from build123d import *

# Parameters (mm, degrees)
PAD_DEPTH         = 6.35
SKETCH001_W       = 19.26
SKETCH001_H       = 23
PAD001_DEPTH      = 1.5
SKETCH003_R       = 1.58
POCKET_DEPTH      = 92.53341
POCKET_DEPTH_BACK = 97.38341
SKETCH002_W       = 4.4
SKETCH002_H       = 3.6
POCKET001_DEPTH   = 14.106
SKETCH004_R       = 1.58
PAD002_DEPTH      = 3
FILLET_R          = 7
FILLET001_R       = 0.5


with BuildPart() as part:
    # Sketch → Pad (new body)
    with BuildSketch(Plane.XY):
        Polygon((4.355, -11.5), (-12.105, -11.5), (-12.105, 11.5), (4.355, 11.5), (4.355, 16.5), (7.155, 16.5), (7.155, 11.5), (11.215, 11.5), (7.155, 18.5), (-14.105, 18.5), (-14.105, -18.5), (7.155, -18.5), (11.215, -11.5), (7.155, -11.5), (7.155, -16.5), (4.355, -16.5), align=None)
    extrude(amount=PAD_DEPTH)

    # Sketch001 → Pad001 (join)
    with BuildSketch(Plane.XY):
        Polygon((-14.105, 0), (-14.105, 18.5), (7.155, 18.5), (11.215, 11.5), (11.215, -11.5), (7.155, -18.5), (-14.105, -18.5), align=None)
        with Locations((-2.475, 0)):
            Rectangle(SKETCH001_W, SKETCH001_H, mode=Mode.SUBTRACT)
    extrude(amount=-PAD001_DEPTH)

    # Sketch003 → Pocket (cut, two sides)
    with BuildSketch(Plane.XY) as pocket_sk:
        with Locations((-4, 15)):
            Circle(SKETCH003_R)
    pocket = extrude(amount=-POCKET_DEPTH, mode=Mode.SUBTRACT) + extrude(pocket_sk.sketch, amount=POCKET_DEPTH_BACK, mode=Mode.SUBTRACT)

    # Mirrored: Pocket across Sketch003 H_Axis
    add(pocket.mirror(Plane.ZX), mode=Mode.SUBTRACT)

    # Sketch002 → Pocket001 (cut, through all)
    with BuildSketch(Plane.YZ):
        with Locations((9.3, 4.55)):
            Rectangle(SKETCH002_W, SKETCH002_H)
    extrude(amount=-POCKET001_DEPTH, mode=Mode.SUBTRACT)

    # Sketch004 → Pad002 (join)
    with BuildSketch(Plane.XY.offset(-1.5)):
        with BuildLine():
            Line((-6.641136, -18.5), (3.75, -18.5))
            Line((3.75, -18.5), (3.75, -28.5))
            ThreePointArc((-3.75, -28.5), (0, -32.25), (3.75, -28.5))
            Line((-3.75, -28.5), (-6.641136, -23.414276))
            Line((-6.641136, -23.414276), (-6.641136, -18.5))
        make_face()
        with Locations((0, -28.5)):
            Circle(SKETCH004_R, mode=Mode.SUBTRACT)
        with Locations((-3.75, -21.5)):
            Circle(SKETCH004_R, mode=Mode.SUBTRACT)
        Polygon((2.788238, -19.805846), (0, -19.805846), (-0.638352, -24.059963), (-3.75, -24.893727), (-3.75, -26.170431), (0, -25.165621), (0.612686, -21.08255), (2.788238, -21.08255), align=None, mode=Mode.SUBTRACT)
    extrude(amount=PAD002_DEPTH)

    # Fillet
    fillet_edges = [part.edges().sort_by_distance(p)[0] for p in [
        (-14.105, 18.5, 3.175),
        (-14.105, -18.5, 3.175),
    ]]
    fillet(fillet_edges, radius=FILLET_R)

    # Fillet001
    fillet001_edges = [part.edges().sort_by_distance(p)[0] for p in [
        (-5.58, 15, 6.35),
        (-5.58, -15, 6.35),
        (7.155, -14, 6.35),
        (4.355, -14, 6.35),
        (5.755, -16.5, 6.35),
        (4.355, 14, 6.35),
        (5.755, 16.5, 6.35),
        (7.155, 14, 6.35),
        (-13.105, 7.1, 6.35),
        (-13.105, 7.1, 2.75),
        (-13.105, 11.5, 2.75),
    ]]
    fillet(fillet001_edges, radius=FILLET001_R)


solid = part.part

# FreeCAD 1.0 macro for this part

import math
import FreeCAD as App
import Part
import Sketcher

V = App.Vector
Q = App.Units.Quantity


def edges_at(feature, points):
    """Names of the edges that pass closest to the given points."""
    edges = feature.Shape.Edges
    near = lambda p: min(range(len(edges)), key=lambda i: edges[i].distToShape(Part.Vertex(*p))[0])
    return sorted({f"Edge{near(p) + 1}" for p in points})


def add_polygon(sketch, points):
    """Adds a closed chain of lines whose ends are joined by coincident constraints."""
    first, n = sketch.GeometryCount, len(points)
    for a, b in zip(points, points[1:] + points[:1]):
        sketch.addGeometry(Part.LineSegment(App.Vector(*a, 0), App.Vector(*b, 0)), False)
    for i in range(n):
        sketch.addConstraint(Sketcher.Constraint("Coincident", first + i, 2, first + (i + 1) % n, 1))

doc = App.newDocument("Part")
body = doc.addObject("PartDesign::Body", "Body")

# Sketch on XY plane
sketch1 = body.newObject("Sketcher::SketchObject", "Sketch")
sketch1.AttachmentSupport = (doc.getObject("XY_Plane"), [""])
sketch1.MapMode = "FlatFace"
add_polygon(sketch1, [(4.4, -11.5), (-12.1, -11.5), (-12.1, 11.5), (4.4, 11.5), (4.4, 16.5), (7.2, 16.5), (7.2, 11.5), (11.2, 11.5), (7.2, 18.5), (-14.1, 18.5), (-14.1, -18.5), (7.2, -18.5), (11.2, -11.5), (7.2, -11.5), (7.2, -16.5), (4.4, -16.5)])  # lines 0-15
sketch1.addConstraint(Sketcher.Constraint("Horizontal", 0))
sketch1.addConstraint(Sketcher.Constraint("Vertical", 1))
sketch1.addConstraint(Sketcher.Constraint("Horizontal", 2))
sketch1.addConstraint(Sketcher.Constraint("Vertical", 3))
sketch1.addConstraint(Sketcher.Constraint("Horizontal", 4))
sketch1.addConstraint(Sketcher.Constraint("Vertical", 5))
sketch1.addConstraint(Sketcher.Constraint("Horizontal", 6))
sketch1.addConstraint(Sketcher.Constraint("Horizontal", 8))
sketch1.addConstraint(Sketcher.Constraint("Vertical", 9))
sketch1.addConstraint(Sketcher.Constraint("Horizontal", 10))
sketch1.addConstraint(Sketcher.Constraint("Horizontal", 12))
sketch1.addConstraint(Sketcher.Constraint("Vertical", 13))
sketch1.addConstraint(Sketcher.Constraint("Horizontal", 14))
sketch1.addConstraint(Sketcher.Constraint("Vertical", 15))
sketch1.addConstraint(Sketcher.Constraint("Symmetric", 7, 2, 10, 2, -1))
sketch1.addConstraint(Sketcher.Constraint("Symmetric", 6, 2, 11, 2, -1))
sketch1.addConstraint(Sketcher.Constraint("Symmetric", 4, 2, 13, 2, -1))
sketch1.addConstraint(Sketcher.Constraint("Symmetric", 2, 2, 15, 2, -1))
sketch1.addConstraint(Sketcher.Constraint("Horizontal", 2, 2, 5, 2))
sketch1.addConstraint(Sketcher.Constraint("Vertical", 5, 2, 7, 2))
sketch1.addConstraint(Sketcher.Constraint("DistanceY", 1, 1, 1, 2, 23.0))
sketch1.addConstraint(Sketcher.Constraint("DistanceY", 3, 1, 3, 2, 5.0))
sketch1.addConstraint(Sketcher.Constraint("DistanceY", 9, 2, 9, 1, 37.0))
sketch1.addConstraint(Sketcher.Constraint("DistanceX", 4, 1, 4, 2, 2.8))
sketch1.addConstraint(Sketcher.Constraint("DistanceX", 8, 2, 1, 2, 2.0))
sketch1.addConstraint(Sketcher.Constraint("DistanceX", 0, 2, 0, 1, 16.46))
sketch1.addConstraint(Sketcher.Constraint("DistanceX", 6, 1, 6, 2, 4.06))
sketch1.addConstraint(Sketcher.Constraint("DistanceX", 0, 2, -1, 1, 12.105))
pad1 = body.newObject("PartDesign::Pad", "Pad")
pad1.Profile = sketch1
pad1.Length = 6.35

# Sketch on XY plane
sketch2 = body.newObject("Sketcher::SketchObject", "Sketch001")
sketch2.AttachmentSupport = (doc.getObject("XY_Plane"), [""])
sketch2.MapMode = "FlatFace"
add_polygon(sketch2, [(-14, 18), (-14, -18), (7, -18), (11, -12), (11, 12), (7, 18)])  # lines 0-5
add_polygon(sketch2, [(-12, -12), (-12, 12), (7, 12), (7, -12)])  # lines 6-9
sketch2.addConstraint(Sketcher.Constraint("Vertical", 0))
sketch2.addConstraint(Sketcher.Constraint("Horizontal", 1))
sketch2.addConstraint(Sketcher.Constraint("Vertical", 3))
sketch2.addConstraint(Sketcher.Constraint("Horizontal", 5))
sketch2.addConstraint(Sketcher.Constraint("Vertical", 6))
sketch2.addConstraint(Sketcher.Constraint("Horizontal", 7))
sketch2.addConstraint(Sketcher.Constraint("Vertical", 8))
sketch2.addConstraint(Sketcher.Constraint("Horizontal", 9))
sketch2.addConstraint(Sketcher.Constraint("Symmetric", 1, 2, 4, 2, -1))
sketch2.addConstraint(Sketcher.Constraint("Horizontal", 3, 2, 6, 2))
sketch2.addConstraint(Sketcher.Constraint("Horizontal", 2, 2, 8, 2))
sketch2.addConstraint(Sketcher.Constraint("Vertical", 4, 2, 7, 2))
sketch2.addConstraint(Sketcher.Constraint("Equal", 2, 4))
sketch2.addConstraint(Sketcher.Constraint("DistanceY", 0, 2, 0, 1, 37.0))
sketch2.addConstraint(Sketcher.Constraint("DistanceY", 3, 1, 3, 2, 23.0))
sketch2.addConstraint(Sketcher.Constraint("DistanceX", 5, 2, 6, 2, 2.0))
sketch2.addConstraint(Sketcher.Constraint("DistanceX", 1, 1, 1, 2, 21.26))
sketch2.addConstraint(Sketcher.Constraint("DistanceX", 1, 2, 2, 2, 4.06))
sketch2.addConstraint(Sketcher.Constraint("DistanceX", 0, 2, -1, 1, 14.105))
pad2 = body.newObject("PartDesign::Pad", "Pad001")
pad2.Profile = sketch2
pad2.Length = 1.5
pad2.Reversed = True

# Sketch on XY plane
sketch3 = body.newObject("Sketcher::SketchObject", "Sketch002")
sketch3.AttachmentSupport = (doc.getObject("XY_Plane"), [""])
sketch3.MapMode = "FlatFace"
sketch3.addGeometry(Part.Circle(V(-4, 15, 0), V(0, 0, 1), 1.6), False)
sketch3.addConstraint(Sketcher.Constraint("Diameter", 0, 3.16))
sketch3.addConstraint(Sketcher.Constraint("DistanceX", 0, 3, -1, 1, 4.0))
sketch3.addConstraint(Sketcher.Constraint("DistanceY", -1, 1, 0, 3, 15.0))
pocket1 = body.newObject("PartDesign::Pocket", "Pocket")
pocket1.Profile = sketch3
pocket1.Type = "ThroughAll"
pocket1.Midplane = True
doc.recompute()

mirrored = body.newObject("PartDesign::Mirrored", "Mirrored")
mirrored.Originals = [pocket1]
mirrored.MirrorPlane = (doc.getObject("XZ_Plane"), [""])
body.Tip = mirrored

# Sketch on YZ plane
sketch4 = body.newObject("Sketcher::SketchObject", "Sketch003")
sketch4.AttachmentSupport = (doc.getObject("YZ_Plane"), [""])
sketch4.MapMode = "FlatFace"
add_polygon(sketch4, [(7.1, 6.3), (7.1, 2.8), (11.5, 2.8), (11.5, 6.3)])  # lines 0-3
sketch4.addConstraint(Sketcher.Constraint("Vertical", 0))
sketch4.addConstraint(Sketcher.Constraint("Horizontal", 1))
sketch4.addConstraint(Sketcher.Constraint("Vertical", 2))
sketch4.addConstraint(Sketcher.Constraint("Horizontal", 3))
sketch4.addConstraint(Sketcher.Constraint("DistanceX", 1, 1, 1, 2, 4.4))
sketch4.addConstraint(Sketcher.Constraint("DistanceY", 0, 2, 0, 1, 3.6))
sketch4.addConstraint(Sketcher.Constraint("DistanceX", -1, 1, 0, 2, 7.1))
sketch4.addConstraint(Sketcher.Constraint("DistanceY", -1, 1, 0, 2, 2.75))
pocket2 = body.newObject("PartDesign::Pocket", "Pocket001")
pocket2.Profile = sketch4
pocket2.Type = "ThroughAll"

# Sketch on XY plane
sketch5 = body.newObject("Sketcher::SketchObject", "Sketch004")
sketch5.AttachmentSupport = (doc.getObject("XY_Plane"), [""])
sketch5.MapMode = "FlatFace"
sketch5.AttachmentOffset = App.Placement(V(0, 0, -1.5), App.Rotation())
sketch5.addGeometry(Part.LineSegment(V(3.8, -18.5, 0), V(-6.6, -18.5, 0)), False)  # 0
sketch5.addGeometry(Part.LineSegment(V(-6.6, -18.5, 0), V(-6.6, -23.4, 0)), False)  # 1
sketch5.addGeometry(Part.LineSegment(V(-6.6, -23.4, 0), V(-3.8, -28.5, 0)), False)  # 2
sketch5.addGeometry(Part.ArcOfCircle(Part.Circle(V(0, -28.5, 0), V(0, 0, 1), 3.8), math.radians(180), math.radians(360)), False)  # 3
sketch5.addGeometry(Part.LineSegment(V(3.8, -28.5, 0), V(3.8, -18.5, 0)), False)  # 4
sketch5.addGeometry(Part.Circle(V(0, -28.5, 0), V(0, 0, 1), 1.6), False)  # 5
add_polygon(sketch5, [(2.8, -19.8), (2.8, -21.1), (0.6, -21.1), (0, -25.2), (-3.8, -26.2), (-3.8, -24.9), (-0.6, -24.1), (0, -19.8)])  # lines 6-13
sketch5.addGeometry(Part.Circle(V(-3.8, -21.5, 0), V(0, 0, 1), 1.6), False)  # 14
sketch5.addConstraint(Sketcher.Constraint("Coincident", 0, 2, 1, 1))
sketch5.addConstraint(Sketcher.Constraint("Coincident", 1, 2, 2, 1))
sketch5.addConstraint(Sketcher.Constraint("Coincident", 2, 2, 3, 1))
sketch5.addConstraint(Sketcher.Constraint("Tangent", 3, 2, 4, 1))
sketch5.addConstraint(Sketcher.Constraint("Coincident", 4, 2, 0, 1))
sketch5.addConstraint(Sketcher.Constraint("Horizontal", 0))
sketch5.addConstraint(Sketcher.Constraint("Vertical", 1))
sketch5.addConstraint(Sketcher.Constraint("Vertical", 4))
sketch5.addConstraint(Sketcher.Constraint("Vertical", 6))
sketch5.addConstraint(Sketcher.Constraint("Horizontal", 7))
sketch5.addConstraint(Sketcher.Constraint("Vertical", 10))
sketch5.addConstraint(Sketcher.Constraint("Horizontal", 13))
sketch5.addConstraint(Sketcher.Constraint("Coincident", 5, 3, 3, 3))
sketch5.addConstraint(Sketcher.Constraint("Equal", 5, 14))
sketch5.addConstraint(Sketcher.Constraint("Symmetric", 2, 2, 3, 2, -2))
sketch5.addConstraint(Sketcher.Constraint("PointOnObject", 8, 2, -2))
sketch5.addConstraint(Sketcher.Constraint("PointOnObject", 12, 2, -2))
sketch5.addConstraint(Sketcher.Constraint("Parallel", 9, 11))
sketch5.addConstraint(Sketcher.Constraint("Parallel", 8, 12))
sketch5.addConstraint(Sketcher.Constraint("Vertical", 14, 3, 2, 2))
sketch5.addConstraint(Sketcher.Constraint("Vertical", 2, 2, 9, 2))
sketch5.addConstraint(Sketcher.Constraint("Equal", 6, 10))
sketch5.addConstraint(Sketcher.Constraint("Diameter", 5, 3.16))
sketch5.addConstraint(Sketcher.Constraint("DistanceY", 4, 1, 4, 2, 10.0))
sketch5.addConstraint(Sketcher.Constraint("Angle", 9, Q("-164.999992 deg")))
sketch5.addConstraint(Sketcher.Constraint("Radius", 3, 3.75))
sketch5.addConstraint(Sketcher.Constraint("DistanceY", 3, 3, 14, 3, 7.0))
sketch5.addConstraint(Sketcher.Constraint("DistanceY", 3, 3, -1, 1, 28.5))
sketch5.addConstraint(Sketcher.Constraint("DistanceX", 13, 1, 13, 2, 2.788238))
sketch5.addConstraint(Sketcher.Constraint("DistanceX", 0, 2, 0, 1, 10.391136))
sketch5.addConstraint(Sketcher.Constraint("DistanceX", 7, 2, 7, 1, 2.175552))
sketch5.addConstraint(Sketcher.Constraint("DistanceY", 1, 2, 1, 1, 4.914276))
sketch5.addConstraint(Sketcher.Constraint("DistanceY", 6, 2, 6, 1, 1.276704))
sketch5.addConstraint(Sketcher.Constraint("DistanceY", 6, 2, -1, 1, 21.08255))
sketch5.addConstraint(Sketcher.Constraint("DistanceY", 8, 2, -1, 1, 25.165621))
pad3 = body.newObject("PartDesign::Pad", "Pad002")
pad3.Profile = sketch5
pad3.Length = 3
doc.recompute()

fillet = body.newObject("PartDesign::Fillet", "Fillet")
fillet.Base = (pad3, edges_at(pad3, [(-14.105, 18.5, 2.425), (-14.105, -18.5, 2.425)]))
fillet.Radius = 7
doc.recompute()

fillet2 = body.newObject("PartDesign::Fillet", "Fillet001")
fillet2.Base = (fillet, edges_at(fillet, [
    (-5.58, 15, 6.35),
    (-5.58, -15, 6.35),
    (7.155, -14, 6.35),
    (4.355, -14, 6.35),
    (5.755, -16.5, 6.35),
    (4.355, 14, 6.35),
    (5.755, 16.5, 6.35),
    (7.155, 14, 6.35),
    (-13.105, 7.1, 6.35),
    (-13.105, 7.1, 2.75),
    (-13.105, 11.5, 2.75),
]))
fillet2.Radius = 0.5

doc.recompute()
